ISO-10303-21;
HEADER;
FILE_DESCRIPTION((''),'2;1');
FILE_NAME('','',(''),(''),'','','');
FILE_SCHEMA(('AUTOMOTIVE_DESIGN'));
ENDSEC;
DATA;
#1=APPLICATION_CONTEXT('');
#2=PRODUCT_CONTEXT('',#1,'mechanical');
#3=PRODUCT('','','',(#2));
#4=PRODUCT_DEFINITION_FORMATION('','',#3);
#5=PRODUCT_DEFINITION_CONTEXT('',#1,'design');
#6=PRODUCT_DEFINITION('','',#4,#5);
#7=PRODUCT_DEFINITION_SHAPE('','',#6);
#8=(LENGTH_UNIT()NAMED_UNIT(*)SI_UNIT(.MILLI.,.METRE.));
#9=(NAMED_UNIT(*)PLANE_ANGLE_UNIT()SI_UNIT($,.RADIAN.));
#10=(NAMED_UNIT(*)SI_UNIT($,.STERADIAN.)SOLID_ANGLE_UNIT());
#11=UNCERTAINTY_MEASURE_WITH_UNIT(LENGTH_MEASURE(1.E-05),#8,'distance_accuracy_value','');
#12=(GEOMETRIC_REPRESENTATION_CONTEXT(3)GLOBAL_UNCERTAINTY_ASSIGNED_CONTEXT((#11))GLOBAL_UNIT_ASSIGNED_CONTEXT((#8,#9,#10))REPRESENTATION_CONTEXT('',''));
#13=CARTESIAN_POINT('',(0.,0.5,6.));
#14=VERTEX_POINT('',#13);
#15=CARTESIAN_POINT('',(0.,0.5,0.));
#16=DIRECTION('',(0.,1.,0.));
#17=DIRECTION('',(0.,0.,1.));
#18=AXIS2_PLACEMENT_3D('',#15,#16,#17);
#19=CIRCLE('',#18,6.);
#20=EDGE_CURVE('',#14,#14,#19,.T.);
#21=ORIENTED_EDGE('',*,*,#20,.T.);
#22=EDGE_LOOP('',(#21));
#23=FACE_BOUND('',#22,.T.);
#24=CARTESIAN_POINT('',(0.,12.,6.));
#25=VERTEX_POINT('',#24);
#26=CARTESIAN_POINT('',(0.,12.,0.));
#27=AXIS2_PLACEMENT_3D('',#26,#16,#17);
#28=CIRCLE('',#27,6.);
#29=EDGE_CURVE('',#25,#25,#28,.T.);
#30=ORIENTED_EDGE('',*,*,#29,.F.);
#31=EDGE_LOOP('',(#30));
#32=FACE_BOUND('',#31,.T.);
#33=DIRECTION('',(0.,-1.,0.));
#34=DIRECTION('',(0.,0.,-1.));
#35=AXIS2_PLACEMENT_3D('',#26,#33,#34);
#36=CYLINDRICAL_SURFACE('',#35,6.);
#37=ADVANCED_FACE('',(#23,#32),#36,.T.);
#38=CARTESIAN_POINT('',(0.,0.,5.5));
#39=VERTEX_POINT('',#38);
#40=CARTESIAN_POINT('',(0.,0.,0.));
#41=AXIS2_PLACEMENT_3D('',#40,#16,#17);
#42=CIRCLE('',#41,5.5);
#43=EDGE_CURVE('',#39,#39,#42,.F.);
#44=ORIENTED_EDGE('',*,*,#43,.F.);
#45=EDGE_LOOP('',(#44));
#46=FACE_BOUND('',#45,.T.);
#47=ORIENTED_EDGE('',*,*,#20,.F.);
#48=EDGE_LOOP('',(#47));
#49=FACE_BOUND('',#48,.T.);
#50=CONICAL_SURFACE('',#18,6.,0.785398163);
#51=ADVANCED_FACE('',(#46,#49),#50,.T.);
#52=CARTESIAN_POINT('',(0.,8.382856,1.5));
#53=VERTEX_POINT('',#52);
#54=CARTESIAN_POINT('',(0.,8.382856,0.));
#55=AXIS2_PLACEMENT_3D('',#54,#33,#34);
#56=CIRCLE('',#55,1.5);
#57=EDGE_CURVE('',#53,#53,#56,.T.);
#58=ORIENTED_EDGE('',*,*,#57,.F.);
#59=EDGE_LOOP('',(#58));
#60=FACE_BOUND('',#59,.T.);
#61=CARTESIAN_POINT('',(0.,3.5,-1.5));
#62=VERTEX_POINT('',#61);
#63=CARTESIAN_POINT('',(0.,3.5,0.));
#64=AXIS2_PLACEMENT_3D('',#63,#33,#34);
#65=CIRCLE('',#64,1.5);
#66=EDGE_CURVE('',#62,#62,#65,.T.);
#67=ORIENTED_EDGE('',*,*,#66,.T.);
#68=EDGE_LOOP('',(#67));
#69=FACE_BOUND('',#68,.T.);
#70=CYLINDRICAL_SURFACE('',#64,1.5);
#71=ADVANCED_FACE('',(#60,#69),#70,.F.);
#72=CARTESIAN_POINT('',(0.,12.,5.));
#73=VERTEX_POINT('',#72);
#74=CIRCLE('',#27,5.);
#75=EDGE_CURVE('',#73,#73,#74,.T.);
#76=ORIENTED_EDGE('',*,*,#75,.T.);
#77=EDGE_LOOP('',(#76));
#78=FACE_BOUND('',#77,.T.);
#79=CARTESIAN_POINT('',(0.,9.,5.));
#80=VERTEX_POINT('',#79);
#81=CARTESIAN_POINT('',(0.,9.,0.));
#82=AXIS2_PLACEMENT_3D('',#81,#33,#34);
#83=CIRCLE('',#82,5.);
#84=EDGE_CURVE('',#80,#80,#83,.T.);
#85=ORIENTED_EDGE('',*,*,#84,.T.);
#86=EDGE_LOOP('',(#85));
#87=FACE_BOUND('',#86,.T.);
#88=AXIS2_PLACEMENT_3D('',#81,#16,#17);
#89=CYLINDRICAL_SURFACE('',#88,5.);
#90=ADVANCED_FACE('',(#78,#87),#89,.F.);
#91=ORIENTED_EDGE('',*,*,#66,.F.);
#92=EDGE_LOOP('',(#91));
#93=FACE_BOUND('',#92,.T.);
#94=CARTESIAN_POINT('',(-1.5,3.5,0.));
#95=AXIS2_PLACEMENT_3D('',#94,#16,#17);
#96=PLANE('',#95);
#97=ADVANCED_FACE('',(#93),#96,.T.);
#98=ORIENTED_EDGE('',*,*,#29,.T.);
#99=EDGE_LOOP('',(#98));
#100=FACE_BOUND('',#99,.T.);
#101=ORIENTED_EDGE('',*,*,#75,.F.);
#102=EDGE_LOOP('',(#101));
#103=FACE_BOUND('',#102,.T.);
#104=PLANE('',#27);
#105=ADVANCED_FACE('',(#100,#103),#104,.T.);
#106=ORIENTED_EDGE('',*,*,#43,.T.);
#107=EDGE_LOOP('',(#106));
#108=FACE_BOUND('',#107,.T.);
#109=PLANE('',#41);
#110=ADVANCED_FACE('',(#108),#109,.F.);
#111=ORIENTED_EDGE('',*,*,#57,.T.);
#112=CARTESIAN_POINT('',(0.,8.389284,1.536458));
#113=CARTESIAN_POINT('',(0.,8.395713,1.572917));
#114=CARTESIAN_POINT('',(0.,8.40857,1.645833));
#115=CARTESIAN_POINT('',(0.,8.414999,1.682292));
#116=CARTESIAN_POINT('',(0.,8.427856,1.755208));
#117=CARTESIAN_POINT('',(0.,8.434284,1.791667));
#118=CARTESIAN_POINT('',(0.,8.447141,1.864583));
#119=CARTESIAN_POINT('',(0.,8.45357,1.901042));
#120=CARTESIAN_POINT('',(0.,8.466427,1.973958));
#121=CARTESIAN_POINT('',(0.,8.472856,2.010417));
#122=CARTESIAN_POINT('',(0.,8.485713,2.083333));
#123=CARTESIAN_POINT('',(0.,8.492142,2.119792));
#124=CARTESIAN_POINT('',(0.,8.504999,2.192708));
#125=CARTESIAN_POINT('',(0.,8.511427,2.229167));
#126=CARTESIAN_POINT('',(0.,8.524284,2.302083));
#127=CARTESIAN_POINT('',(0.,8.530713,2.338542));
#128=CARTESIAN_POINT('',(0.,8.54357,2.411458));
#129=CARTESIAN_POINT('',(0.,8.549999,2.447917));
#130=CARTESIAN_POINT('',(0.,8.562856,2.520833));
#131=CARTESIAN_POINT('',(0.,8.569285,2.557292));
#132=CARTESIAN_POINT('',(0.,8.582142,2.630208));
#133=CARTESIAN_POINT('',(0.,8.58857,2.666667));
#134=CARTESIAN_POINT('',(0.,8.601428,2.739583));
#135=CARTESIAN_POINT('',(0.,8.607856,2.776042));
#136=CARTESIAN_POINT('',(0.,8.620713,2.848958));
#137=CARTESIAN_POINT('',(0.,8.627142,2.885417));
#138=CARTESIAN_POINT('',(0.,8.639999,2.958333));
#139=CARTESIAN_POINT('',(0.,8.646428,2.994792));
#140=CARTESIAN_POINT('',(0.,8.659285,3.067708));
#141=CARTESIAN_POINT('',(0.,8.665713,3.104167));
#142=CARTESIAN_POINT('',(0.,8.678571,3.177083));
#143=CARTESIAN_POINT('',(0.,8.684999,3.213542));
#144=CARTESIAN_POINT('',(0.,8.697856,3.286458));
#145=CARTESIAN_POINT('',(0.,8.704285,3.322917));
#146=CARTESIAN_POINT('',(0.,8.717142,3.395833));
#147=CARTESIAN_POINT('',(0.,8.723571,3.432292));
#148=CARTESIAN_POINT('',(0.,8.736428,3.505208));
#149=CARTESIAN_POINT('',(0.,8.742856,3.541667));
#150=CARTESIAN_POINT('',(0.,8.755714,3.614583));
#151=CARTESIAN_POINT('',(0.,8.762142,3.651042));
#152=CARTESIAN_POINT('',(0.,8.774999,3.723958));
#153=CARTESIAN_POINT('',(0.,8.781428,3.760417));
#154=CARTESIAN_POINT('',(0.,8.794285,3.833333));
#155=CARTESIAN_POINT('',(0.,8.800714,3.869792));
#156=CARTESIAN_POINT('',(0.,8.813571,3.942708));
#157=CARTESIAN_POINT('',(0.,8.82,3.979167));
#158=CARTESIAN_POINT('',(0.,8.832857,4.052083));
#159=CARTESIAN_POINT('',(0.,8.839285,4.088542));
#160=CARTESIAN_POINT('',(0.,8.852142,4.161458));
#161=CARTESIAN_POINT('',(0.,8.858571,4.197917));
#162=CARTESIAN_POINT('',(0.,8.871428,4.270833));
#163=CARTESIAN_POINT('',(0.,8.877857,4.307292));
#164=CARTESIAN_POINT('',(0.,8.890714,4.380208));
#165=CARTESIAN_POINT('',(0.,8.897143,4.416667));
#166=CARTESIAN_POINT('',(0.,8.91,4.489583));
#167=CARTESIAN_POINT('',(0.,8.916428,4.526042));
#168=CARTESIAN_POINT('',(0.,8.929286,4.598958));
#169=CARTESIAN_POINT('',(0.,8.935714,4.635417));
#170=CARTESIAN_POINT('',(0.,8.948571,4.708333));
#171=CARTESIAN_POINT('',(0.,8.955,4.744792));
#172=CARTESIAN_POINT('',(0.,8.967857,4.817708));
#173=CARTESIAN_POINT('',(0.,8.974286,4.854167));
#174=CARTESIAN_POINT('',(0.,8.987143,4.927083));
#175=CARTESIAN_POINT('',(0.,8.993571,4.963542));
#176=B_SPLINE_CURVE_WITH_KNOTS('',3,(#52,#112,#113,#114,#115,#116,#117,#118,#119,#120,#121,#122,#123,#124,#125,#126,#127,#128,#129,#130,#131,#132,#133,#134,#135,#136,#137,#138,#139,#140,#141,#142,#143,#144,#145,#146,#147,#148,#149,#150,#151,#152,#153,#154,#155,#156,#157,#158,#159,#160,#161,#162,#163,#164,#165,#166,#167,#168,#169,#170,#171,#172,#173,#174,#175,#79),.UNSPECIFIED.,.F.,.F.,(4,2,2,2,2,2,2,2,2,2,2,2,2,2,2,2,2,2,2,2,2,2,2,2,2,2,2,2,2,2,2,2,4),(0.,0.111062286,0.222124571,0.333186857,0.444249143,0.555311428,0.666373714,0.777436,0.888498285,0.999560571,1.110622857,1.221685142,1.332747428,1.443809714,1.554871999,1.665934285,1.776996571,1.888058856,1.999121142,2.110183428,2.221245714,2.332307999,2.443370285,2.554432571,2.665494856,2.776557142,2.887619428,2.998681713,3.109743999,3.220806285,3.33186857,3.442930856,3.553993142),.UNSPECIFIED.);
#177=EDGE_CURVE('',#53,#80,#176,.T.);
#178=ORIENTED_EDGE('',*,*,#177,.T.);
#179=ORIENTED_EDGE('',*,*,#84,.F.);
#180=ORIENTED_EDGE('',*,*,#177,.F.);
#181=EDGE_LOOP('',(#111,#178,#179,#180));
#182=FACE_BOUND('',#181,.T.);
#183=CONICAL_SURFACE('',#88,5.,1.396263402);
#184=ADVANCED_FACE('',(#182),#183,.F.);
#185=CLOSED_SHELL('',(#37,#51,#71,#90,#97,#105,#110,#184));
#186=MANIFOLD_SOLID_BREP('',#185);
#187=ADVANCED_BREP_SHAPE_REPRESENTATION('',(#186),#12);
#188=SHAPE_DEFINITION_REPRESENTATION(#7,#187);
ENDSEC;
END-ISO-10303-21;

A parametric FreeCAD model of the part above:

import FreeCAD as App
import Part
import Sketcher
Q = App.Units.Quantity


def edges_at(feature, points):
    """Names of the edges that pass closest to the given points."""
    edges = feature.Shape.Edges
    near = lambda p: min(range(len(edges)), key=lambda i: edges[i].distToShape(Part.Vertex(*p))[0])
    return sorted({f"Edge{near(p) + 1}" for p in points})


def add_polygon(sketch, points):
    """Adds a closed chain of lines whose ends are joined by coincident constraints."""
    first, n = sketch.GeometryCount, len(points)
    for a, b in zip(points, points[1:] + points[:1]):
        sketch.addGeometry(Part.LineSegment(App.Vector(*a, 0), App.Vector(*b, 0)), False)
    for i in range(n):
        sketch.addConstraint(Sketcher.Constraint("Coincident", first + i, 2, first + (i + 1) % n, 1))

doc = App.newDocument("Part")
params = doc.addObject("Spreadsheet::Sheet", "Params")
for row, (alias, value) in enumerate([
    ("sketch1_diameter", "12 mm"),
    ("pad1_length", "12 mm"),
    ("sketch2_diameter", "10 mm"),
    ("pocket1_length", "3 mm"),
    ("sketch3_width", "5 mm"),
    ("sketch3_width2", "1.5 mm"),
    ("sketch3_height", "5.5 mm"),
    ("groove_angle", "360 deg"),
    ("chamfer_size", "0.5 mm"),
], start=1):
    params.set(f"A{row}", alias)
    params.set(f"B{row}", "=" + value)
    params.setAlias(f"B{row}", alias)

body = doc.addObject("PartDesign::Body", "Body")

# Sketch on XZ plane
sketch1 = body.newObject("Sketcher::SketchObject", "Sketch")
sketch1.AttachmentSupport = (doc.getObject("XZ_Plane"), [""])
sketch1.MapMode = "FlatFace"
sketch1.addGeometry(Part.Circle(App.Vector(0, 0, 0), App.Vector(0, 0, 1), 6), False)
sketch1.addConstraint([
    Sketcher.Constraint("Coincident", 0, 3, -1, 1),
    Sketcher.Constraint("Diameter", 0, 12.0),
])
sketch1.setExpression("Constraints[1]", "Params.sketch1_diameter")
pad1 = body.newObject("PartDesign::Pad", "Pad")
pad1.Profile = sketch1
pad1.setExpression("Length", "Params.pad1_length")
pad1.Reversed = True

# Sketch on XZ plane
sketch2 = body.newObject("Sketcher::SketchObject", "Sketch001")
sketch2.AttachmentSupport = (doc.getObject("XZ_Plane"), [""])
sketch2.MapMode = "FlatFace"
sketch2.AttachmentOffset = App.Placement(App.Vector(0, 0, -12), App.Rotation())
sketch2.addGeometry(Part.Circle(App.Vector(0, 0, 0), App.Vector(0, 0, 1), 5), False)
sketch2.addConstraint([
    Sketcher.Constraint("Coincident", 0, 3, -1, 1),
    Sketcher.Constraint("Diameter", 0, 10.0),
])
sketch2.setExpression("Constraints[1]", "Params.sketch2_diameter")
pocket1 = body.newObject("PartDesign::Pocket", "Pocket")
pocket1.Profile = sketch2
pocket1.setExpression("Length", "Params.pocket1_length")
pocket1.Reversed = True

# Sketch on XY plane
sketch3 = body.newObject("Sketcher::SketchObject", "Sketch002")
sketch3.AttachmentSupport = (doc.getObject("XY_Plane"), [""])
sketch3.MapMode = "FlatFace"
add_polygon(sketch3, [(-5, 9), (-1.5, 8.382856), (-1.5, 3.5), (0, 3.5), (0, 9)])  # lines 0-4
sketch3.addConstraint([
    Sketcher.Constraint("Vertical", 1),
    Sketcher.Constraint("Horizontal", 2),
    Sketcher.Constraint("Vertical", 3),
    Sketcher.Constraint("Horizontal", 4),
    Sketcher.Constraint("PointOnObject", 2, 2, -2),
    Sketcher.Constraint("DistanceX", 4, 2, 4, 1, 5.0),
    Sketcher.Constraint("Angle", 0, Q("-10 deg")),
    Sketcher.Constraint("DistanceX", 2, 1, 2, 2, 1.5),
    Sketcher.Constraint("DistanceY", 3, 1, 3, 2, 5.5),
    Sketcher.Constraint("DistanceY", -1, 1, 3, 2, 9.0),
])
sketch3.setExpression("Constraints[10]", "Params.sketch3_width")
sketch3.setExpression("Constraints[12]", "Params.sketch3_width2")
sketch3.setExpression("Constraints[13]", "Params.sketch3_height")
groove = body.newObject("PartDesign::Groove", "Groove")
groove.Profile = sketch3
groove.ReferenceAxis = (sketch3, ["V_Axis"])
groove.setExpression("Angle", "Params.groove_angle")
doc.recompute()

chamfer = body.newObject("PartDesign::Chamfer", "Chamfer")
chamfer.Base = (groove, edges_at(groove, [(0, 0, -6)]))
chamfer.setExpression("Size", "Params.chamfer_size")

doc.recompute()
